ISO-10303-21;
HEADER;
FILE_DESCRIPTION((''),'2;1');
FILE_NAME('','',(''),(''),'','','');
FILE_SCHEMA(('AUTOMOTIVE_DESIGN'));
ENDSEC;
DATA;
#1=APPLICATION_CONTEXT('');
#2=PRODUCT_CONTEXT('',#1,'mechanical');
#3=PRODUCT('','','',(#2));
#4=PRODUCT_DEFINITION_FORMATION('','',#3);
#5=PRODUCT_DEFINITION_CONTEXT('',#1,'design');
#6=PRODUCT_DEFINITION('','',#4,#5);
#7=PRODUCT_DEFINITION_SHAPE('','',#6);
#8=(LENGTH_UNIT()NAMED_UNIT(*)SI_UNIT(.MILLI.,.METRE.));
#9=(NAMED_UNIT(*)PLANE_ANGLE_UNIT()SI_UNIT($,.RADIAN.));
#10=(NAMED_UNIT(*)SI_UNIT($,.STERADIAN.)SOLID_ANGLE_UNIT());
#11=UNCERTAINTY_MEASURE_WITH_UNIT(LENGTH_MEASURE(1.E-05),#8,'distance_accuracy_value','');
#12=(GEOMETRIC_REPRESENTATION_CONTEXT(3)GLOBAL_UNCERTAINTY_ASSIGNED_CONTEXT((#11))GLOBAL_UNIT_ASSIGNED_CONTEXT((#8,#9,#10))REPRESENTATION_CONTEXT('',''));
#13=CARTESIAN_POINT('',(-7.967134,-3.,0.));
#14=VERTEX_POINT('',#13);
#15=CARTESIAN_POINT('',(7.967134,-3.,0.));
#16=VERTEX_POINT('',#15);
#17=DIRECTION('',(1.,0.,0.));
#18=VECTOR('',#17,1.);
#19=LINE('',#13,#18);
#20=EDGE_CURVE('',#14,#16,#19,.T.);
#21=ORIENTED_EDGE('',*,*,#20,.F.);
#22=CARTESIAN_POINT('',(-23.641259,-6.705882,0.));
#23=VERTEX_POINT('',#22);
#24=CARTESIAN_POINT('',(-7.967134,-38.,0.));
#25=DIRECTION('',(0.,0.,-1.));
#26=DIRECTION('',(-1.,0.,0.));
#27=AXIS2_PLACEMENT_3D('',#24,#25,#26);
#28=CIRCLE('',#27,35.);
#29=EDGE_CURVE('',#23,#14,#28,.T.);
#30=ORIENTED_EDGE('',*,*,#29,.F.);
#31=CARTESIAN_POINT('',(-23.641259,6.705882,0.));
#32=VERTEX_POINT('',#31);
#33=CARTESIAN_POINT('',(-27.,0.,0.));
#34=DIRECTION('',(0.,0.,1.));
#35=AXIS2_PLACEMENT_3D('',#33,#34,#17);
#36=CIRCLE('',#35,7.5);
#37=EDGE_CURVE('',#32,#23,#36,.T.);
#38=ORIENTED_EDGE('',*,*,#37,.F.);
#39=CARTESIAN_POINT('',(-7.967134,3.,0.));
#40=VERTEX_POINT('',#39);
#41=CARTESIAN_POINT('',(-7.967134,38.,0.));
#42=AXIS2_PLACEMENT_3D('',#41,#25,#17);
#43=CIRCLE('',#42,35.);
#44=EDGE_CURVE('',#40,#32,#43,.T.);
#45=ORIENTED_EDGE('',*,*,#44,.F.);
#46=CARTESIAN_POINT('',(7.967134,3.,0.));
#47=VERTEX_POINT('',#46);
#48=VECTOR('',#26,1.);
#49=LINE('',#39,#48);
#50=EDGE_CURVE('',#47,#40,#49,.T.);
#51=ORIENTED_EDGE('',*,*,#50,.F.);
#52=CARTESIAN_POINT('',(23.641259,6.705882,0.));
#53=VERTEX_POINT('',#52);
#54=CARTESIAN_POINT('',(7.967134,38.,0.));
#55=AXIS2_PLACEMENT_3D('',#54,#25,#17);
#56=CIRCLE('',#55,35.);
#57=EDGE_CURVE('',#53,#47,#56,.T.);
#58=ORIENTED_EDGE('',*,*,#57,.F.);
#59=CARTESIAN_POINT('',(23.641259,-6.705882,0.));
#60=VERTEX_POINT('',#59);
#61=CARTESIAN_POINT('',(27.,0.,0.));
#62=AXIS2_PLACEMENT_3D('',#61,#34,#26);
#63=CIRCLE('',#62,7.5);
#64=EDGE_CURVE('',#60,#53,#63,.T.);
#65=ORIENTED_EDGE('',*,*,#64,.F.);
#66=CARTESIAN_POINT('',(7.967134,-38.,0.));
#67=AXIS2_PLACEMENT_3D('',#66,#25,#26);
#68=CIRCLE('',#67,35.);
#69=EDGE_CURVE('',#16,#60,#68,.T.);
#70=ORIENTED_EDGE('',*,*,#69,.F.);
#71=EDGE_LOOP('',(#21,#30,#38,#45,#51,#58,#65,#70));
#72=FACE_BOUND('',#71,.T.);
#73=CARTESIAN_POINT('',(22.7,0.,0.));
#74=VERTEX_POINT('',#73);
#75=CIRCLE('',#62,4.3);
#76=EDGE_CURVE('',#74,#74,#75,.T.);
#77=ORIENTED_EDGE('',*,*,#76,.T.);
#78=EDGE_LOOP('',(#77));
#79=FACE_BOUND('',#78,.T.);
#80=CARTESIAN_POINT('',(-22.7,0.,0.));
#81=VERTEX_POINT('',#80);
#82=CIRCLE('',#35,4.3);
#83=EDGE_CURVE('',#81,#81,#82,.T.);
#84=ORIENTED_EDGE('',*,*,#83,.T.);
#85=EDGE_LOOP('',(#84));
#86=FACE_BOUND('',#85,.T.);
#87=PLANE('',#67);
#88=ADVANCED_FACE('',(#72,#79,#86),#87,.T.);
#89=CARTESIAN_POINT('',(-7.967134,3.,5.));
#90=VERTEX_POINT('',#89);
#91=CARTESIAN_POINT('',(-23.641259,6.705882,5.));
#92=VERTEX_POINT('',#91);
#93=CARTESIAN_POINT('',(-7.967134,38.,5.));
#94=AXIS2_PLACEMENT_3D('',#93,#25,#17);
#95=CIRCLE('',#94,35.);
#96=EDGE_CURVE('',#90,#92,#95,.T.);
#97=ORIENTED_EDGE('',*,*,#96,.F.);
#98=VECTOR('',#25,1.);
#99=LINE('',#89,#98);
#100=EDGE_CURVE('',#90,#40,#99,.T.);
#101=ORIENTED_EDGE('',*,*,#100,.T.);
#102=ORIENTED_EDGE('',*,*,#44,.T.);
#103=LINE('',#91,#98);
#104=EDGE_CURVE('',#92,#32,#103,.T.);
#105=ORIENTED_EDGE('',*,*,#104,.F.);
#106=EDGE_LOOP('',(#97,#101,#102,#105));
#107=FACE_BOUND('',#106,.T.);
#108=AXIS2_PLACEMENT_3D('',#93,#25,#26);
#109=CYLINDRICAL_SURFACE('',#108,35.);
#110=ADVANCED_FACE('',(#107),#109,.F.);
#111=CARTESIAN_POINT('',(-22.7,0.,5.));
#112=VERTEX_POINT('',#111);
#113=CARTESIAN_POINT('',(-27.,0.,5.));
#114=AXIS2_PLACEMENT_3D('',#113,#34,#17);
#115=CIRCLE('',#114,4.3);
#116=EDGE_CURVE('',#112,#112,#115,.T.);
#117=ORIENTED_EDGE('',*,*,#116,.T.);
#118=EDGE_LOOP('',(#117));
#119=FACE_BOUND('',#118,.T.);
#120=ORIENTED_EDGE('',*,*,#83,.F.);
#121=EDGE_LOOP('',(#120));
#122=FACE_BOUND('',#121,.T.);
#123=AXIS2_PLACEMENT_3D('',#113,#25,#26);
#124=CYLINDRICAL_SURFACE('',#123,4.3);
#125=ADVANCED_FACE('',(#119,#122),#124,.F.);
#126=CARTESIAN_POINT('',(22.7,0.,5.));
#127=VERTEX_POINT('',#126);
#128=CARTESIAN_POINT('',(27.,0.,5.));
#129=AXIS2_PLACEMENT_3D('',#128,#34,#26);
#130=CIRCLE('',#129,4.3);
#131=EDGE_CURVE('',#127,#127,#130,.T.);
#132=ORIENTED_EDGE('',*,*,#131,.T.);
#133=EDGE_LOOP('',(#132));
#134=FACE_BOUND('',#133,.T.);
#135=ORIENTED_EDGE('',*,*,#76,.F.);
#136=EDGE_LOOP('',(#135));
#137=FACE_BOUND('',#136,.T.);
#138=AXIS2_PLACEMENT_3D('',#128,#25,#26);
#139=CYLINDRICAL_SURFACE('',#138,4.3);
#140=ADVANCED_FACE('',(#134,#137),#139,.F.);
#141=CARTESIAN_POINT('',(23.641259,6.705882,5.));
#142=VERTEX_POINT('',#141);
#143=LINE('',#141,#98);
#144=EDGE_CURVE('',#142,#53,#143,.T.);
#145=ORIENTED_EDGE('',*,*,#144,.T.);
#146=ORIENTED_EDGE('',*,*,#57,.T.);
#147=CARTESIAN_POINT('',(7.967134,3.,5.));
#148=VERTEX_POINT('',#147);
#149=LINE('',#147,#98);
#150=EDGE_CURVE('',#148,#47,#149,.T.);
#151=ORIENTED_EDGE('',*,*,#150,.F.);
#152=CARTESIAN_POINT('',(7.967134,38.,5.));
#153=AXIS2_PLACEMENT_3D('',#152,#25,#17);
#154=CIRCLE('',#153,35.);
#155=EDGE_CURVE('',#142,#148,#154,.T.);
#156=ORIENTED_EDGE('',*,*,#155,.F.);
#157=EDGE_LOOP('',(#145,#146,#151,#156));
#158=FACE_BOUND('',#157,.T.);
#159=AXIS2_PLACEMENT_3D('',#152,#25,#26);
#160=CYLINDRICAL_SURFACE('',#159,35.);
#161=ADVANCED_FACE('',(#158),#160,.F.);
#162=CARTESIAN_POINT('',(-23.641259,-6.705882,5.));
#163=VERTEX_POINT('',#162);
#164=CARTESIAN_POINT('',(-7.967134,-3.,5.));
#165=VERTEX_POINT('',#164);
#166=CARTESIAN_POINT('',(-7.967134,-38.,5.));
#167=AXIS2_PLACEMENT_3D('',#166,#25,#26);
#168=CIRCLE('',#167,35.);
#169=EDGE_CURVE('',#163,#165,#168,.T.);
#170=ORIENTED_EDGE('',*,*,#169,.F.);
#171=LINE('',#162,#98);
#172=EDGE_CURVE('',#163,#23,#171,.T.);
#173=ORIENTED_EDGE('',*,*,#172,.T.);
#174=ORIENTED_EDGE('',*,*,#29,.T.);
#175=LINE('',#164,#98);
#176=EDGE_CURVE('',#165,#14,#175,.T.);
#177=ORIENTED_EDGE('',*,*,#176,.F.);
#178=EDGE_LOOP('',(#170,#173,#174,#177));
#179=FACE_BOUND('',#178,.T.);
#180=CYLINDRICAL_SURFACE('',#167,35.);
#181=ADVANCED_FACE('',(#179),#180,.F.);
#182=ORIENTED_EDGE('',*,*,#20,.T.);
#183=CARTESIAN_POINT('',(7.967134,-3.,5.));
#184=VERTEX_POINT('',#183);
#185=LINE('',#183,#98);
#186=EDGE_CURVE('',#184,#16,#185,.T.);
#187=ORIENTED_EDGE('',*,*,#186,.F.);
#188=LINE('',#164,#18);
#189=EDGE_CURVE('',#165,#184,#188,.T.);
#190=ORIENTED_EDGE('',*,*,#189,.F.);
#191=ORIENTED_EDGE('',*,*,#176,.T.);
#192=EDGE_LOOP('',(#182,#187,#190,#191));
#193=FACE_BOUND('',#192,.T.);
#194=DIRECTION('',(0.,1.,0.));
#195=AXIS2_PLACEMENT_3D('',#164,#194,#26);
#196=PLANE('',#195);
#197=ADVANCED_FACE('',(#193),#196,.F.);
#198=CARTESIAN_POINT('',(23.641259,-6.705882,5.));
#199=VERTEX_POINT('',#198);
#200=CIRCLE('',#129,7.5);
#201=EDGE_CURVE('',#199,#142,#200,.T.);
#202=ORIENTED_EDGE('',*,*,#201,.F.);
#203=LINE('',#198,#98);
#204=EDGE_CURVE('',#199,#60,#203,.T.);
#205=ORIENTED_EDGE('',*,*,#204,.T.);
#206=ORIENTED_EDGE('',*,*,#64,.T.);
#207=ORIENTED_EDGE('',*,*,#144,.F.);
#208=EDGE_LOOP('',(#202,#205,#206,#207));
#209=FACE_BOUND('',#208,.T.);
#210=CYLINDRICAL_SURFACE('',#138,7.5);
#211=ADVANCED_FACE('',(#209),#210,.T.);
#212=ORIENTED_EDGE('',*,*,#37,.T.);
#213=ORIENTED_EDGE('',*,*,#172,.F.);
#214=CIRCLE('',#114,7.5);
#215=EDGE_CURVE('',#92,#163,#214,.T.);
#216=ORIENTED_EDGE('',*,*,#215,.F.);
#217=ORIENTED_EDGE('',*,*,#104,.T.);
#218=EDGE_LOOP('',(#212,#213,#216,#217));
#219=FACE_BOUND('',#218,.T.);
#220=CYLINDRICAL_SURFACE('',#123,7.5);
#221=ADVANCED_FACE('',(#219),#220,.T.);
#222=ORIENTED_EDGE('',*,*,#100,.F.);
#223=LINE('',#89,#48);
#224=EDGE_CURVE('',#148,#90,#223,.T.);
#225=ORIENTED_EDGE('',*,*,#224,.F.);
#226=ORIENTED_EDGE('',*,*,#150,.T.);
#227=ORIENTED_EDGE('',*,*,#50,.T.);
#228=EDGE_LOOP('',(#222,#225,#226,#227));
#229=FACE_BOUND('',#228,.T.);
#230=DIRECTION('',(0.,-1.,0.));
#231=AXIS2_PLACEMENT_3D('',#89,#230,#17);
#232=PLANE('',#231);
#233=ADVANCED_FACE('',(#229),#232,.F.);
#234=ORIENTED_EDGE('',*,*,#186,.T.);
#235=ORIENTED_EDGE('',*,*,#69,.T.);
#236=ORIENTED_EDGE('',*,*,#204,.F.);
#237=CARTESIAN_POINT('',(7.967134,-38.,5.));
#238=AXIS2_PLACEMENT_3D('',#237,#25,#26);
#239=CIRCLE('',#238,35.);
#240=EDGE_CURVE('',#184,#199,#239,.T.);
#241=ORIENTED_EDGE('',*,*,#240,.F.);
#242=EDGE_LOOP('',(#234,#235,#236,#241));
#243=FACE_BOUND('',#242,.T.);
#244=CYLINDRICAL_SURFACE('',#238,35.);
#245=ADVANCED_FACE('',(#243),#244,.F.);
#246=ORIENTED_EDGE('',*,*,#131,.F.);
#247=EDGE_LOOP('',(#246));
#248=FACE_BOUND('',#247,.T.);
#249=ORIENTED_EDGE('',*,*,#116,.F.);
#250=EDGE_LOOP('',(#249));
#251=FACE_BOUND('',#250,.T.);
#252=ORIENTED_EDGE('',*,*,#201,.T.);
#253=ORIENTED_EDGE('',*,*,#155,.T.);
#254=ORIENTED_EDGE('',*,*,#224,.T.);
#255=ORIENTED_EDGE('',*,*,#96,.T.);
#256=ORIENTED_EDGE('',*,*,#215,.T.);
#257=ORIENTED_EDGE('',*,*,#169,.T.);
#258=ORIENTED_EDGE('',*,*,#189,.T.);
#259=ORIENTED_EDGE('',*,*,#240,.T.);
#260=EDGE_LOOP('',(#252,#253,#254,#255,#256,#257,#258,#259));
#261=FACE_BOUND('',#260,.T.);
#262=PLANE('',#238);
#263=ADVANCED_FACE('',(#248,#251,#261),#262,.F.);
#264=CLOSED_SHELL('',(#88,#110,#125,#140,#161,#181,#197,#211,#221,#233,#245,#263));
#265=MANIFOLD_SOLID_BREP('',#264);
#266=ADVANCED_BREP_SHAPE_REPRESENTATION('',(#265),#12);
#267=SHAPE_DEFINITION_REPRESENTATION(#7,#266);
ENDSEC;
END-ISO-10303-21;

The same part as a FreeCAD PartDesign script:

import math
import FreeCAD as App
import Part
import Sketcher
from FreeCAD import Vector

doc = App.newDocument("Part")
body = doc.addObject("PartDesign::Body", "Body")

# Sketch on XY plane
sketch1 = doc.addObject("Sketcher::SketchObject", "Sketch")
body.addObject(sketch1)
sketch1.AttachmentSupport = (doc.XY_Plane, [""])
sketch1.MapMode = "FlatFace"
sketch1.addGeometry([
    Part.LineSegment(Vector(8, 3, 0), Vector(-8, 3, 0)),  # 0
    Part.ArcOfCircle(Part.Circle(Vector(-8, 38, 0), Vector(0, 0, 1), 35), math.radians(-117), math.radians(-90)),  # 1
    Part.ArcOfCircle(Part.Circle(Vector(-27, 0, 0), Vector(0, 0, 1), 7.5), math.radians(63), math.radians(297)),  # 2
    Part.ArcOfCircle(Part.Circle(Vector(-8, -38, 0), Vector(0, 0, 1), 35), math.radians(90), math.radians(117)),  # 3
    Part.LineSegment(Vector(-8, -3, 0), Vector(8, -3, 0)),  # 4
    Part.ArcOfCircle(Part.Circle(Vector(8, -38, 0), Vector(0, 0, 1), 35), math.radians(63), math.radians(90)),  # 5
    Part.ArcOfCircle(Part.Circle(Vector(27, 0, 0), Vector(0, 0, 1), 7.5), math.radians(-117), math.radians(117)),  # 6
    Part.ArcOfCircle(Part.Circle(Vector(8, 38, 0), Vector(0, 0, 1), 35), math.radians(-90), math.radians(-63)),  # 7
    Part.Circle(Vector(27, 0, 0), Vector(0, 0, 1), 4.3),  # 8
    Part.Circle(Vector(-27, 0, 0), Vector(0, 0, 1), 4.3),  # 9
], False)
sketch1.addConstraint([
    Sketcher.Constraint("Tangent", 0, 2, 1, 2),
    Sketcher.Constraint("Tangent", 1, 1, 2, 1),
    Sketcher.Constraint("Tangent", 2, 2, 3, 2),
    Sketcher.Constraint("Tangent", 3, 1, 4, 1),
    Sketcher.Constraint("Tangent", 4, 2, 5, 2),
    Sketcher.Constraint("Tangent", 5, 1, 6, 1),
    Sketcher.Constraint("Tangent", 6, 2, 7, 2),
    Sketcher.Constraint("Tangent", 7, 1, 0, 1),
    Sketcher.Constraint("Horizontal", 0),
    Sketcher.Constraint("Horizontal", 4),
    Sketcher.Constraint("Coincident", 8, 3, 6, 3),
    Sketcher.Constraint("Coincident", 9, 3, 2, 3),
    Sketcher.Constraint("Equal", 1, 3),
    Sketcher.Constraint("Equal", 3, 5),
    Sketcher.Constraint("Equal", 2, 6),
    Sketcher.Constraint("Equal", 5, 7),
    Sketcher.Constraint("Equal", 8, 9),
    Sketcher.Constraint("Symmetric", 1, 3, 5, 3, -1, 1),
    Sketcher.Constraint("Symmetric", 2, 3, 6, 3, -2),
    Sketcher.Constraint("Radius", 1, 35.0),
    Sketcher.Constraint("Diameter", 8, 8.6),
    Sketcher.Constraint("Radius", 2, 7.5),
    Sketcher.Constraint("DistanceY", -1, 1, 1, 3, 38.0),
    Sketcher.Constraint("DistanceX", 2, 3, -1, 1, 27.0),
])
pad1 = doc.addObject("PartDesign::Pad", "Pad")
body.addObject(pad1)
pad1.Profile = sketch1
pad1.Length = 5

doc.recompute()
